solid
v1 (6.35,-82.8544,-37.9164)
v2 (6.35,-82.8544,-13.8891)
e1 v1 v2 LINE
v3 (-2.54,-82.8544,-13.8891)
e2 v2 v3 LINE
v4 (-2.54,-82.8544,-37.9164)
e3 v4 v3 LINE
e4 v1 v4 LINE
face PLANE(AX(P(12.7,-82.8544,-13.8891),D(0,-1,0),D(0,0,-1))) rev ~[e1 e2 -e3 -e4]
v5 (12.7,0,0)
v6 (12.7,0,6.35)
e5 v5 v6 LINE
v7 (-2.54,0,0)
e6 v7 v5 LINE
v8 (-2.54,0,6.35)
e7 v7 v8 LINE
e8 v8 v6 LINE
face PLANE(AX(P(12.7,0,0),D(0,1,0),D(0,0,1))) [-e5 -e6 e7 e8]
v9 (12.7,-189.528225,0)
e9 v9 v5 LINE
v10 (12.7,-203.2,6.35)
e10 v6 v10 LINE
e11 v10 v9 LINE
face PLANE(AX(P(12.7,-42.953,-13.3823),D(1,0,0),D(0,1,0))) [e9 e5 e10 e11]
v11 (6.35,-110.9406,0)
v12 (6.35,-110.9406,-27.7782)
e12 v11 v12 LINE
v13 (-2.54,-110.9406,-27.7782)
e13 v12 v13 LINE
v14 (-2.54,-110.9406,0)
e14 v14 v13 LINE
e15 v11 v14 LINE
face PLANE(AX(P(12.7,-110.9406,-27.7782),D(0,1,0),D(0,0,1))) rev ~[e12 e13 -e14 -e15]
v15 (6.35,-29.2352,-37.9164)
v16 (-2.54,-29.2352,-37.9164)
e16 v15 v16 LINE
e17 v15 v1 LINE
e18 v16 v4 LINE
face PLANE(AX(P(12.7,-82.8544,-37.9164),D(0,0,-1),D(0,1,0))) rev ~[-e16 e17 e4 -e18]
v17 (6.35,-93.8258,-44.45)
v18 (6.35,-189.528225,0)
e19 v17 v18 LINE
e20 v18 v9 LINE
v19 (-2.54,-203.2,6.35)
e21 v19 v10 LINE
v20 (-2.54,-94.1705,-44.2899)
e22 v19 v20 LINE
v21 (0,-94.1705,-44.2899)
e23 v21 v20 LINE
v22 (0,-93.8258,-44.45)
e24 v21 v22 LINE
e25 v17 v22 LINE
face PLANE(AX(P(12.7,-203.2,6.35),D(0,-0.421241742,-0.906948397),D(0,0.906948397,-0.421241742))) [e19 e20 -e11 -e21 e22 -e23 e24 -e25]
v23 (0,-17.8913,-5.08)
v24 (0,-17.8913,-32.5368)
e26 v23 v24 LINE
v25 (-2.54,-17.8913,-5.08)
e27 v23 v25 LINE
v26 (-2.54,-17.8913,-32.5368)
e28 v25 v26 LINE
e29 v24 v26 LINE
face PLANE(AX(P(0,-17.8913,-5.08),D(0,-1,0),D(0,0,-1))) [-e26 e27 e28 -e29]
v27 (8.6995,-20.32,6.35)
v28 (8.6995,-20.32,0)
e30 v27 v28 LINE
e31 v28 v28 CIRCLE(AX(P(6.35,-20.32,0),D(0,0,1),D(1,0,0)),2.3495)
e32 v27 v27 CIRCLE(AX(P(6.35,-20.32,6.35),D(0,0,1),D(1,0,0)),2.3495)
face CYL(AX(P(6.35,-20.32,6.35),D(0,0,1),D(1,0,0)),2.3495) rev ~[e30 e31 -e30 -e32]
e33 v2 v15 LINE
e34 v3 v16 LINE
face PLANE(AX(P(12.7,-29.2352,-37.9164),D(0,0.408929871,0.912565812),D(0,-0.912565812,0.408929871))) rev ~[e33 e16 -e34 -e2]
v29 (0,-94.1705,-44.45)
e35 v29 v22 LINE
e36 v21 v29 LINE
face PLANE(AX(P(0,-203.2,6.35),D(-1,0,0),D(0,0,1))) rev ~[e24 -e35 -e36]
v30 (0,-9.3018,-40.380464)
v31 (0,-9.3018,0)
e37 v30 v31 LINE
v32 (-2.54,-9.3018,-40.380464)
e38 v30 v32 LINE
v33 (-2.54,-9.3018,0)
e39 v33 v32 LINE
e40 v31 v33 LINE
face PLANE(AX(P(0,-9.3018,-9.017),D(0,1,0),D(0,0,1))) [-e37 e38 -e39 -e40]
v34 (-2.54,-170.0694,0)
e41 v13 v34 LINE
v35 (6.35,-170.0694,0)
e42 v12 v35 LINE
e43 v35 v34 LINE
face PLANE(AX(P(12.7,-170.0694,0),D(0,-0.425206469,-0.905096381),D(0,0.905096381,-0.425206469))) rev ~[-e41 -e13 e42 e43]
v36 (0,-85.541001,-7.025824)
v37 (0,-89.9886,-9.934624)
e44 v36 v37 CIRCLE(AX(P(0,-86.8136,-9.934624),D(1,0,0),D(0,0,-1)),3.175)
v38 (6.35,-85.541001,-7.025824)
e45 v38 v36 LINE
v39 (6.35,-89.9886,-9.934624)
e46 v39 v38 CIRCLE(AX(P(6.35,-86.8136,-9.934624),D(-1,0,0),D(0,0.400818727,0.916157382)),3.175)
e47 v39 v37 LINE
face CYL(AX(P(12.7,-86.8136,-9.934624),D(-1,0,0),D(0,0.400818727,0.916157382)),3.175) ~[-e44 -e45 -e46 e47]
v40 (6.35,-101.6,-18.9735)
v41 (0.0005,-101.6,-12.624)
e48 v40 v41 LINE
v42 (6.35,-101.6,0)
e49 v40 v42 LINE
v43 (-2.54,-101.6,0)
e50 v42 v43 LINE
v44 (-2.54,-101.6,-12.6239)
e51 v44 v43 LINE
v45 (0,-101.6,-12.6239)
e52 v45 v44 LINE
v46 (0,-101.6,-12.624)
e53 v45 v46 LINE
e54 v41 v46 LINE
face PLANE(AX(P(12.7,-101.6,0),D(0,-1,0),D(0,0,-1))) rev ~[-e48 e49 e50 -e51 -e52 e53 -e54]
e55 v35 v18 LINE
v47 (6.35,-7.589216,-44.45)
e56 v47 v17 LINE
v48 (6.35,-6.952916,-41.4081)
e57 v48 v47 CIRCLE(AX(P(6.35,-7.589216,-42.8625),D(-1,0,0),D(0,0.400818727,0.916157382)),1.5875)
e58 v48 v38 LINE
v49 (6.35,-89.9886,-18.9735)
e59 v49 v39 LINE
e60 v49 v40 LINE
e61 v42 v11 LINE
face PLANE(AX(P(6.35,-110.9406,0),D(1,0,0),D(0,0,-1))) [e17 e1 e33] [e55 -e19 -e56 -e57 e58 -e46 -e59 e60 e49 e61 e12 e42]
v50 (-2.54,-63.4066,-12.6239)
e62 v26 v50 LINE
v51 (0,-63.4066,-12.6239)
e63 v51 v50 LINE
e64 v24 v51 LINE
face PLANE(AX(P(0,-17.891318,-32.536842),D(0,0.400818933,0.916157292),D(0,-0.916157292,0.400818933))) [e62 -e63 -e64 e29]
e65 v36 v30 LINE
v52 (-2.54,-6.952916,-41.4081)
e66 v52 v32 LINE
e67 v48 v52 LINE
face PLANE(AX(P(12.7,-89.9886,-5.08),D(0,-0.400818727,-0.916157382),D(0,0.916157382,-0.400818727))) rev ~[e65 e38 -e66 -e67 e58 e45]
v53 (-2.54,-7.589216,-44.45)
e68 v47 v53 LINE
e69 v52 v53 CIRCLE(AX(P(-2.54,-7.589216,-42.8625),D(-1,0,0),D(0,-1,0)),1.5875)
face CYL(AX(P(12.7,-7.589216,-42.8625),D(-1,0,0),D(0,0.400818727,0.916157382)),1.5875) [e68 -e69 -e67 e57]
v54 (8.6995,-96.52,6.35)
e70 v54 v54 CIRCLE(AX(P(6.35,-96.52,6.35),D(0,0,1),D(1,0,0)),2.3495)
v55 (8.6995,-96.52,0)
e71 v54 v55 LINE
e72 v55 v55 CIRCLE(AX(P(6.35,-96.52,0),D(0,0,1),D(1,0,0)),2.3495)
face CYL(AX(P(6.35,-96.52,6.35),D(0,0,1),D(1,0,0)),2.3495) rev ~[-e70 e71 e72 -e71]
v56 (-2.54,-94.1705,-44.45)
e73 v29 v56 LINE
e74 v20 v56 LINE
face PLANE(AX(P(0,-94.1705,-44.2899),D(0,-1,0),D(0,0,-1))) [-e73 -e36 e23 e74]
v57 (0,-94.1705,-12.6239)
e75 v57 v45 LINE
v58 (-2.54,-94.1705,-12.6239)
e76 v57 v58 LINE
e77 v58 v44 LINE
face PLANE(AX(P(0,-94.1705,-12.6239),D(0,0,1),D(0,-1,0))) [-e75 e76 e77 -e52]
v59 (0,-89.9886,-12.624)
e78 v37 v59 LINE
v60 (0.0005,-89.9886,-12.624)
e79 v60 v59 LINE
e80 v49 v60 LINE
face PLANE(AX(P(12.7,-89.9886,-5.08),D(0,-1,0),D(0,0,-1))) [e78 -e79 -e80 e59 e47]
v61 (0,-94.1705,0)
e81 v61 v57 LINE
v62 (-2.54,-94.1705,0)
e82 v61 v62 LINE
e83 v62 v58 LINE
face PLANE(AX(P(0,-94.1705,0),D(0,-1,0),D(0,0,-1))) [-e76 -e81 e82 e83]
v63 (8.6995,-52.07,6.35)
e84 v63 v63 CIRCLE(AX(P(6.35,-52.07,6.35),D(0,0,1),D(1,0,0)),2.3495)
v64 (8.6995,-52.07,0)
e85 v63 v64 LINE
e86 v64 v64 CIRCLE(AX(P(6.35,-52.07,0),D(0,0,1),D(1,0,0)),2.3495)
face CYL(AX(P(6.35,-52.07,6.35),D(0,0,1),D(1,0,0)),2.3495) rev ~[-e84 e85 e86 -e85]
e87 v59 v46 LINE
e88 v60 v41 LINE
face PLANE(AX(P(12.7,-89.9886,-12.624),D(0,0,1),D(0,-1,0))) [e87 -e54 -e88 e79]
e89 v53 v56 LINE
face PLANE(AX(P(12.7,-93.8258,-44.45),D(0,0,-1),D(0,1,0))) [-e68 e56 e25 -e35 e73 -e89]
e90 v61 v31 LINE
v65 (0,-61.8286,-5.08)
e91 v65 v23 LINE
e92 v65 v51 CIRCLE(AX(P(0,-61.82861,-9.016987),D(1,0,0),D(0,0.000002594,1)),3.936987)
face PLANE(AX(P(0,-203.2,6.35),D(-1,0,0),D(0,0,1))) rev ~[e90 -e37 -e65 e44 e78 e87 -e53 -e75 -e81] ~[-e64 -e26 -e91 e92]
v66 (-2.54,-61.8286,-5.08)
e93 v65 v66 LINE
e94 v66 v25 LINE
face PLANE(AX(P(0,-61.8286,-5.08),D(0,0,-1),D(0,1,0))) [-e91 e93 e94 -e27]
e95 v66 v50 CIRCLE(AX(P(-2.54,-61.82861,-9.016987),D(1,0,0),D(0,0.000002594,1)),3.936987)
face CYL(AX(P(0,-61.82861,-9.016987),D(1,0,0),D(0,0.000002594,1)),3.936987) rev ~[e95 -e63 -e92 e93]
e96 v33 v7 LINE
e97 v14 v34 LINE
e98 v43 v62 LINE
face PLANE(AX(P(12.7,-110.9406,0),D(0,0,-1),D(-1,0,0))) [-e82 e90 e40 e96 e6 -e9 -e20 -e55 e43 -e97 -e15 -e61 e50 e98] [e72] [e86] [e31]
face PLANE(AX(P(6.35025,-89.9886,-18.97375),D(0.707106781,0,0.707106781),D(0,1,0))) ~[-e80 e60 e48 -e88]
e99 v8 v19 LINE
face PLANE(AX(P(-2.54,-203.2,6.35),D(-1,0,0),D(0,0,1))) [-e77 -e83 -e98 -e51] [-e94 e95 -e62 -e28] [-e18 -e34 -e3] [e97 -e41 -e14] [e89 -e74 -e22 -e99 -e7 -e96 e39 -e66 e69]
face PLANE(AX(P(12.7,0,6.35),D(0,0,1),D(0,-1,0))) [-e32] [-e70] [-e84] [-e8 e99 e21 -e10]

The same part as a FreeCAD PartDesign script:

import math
import FreeCAD as App
import Part
import Sketcher
from FreeCAD import Vector
Q = App.Units.Quantity


def edges_at(feature, points):
    """Names of the edges that pass closest to the given points."""
    edges = feature.Shape.Edges
    near = lambda p: min(range(len(edges)), key=lambda i: edges[i].distToShape(Part.Vertex(*p))[0])
    return sorted({f"Edge{near(p) + 1}" for p in points})

doc = App.newDocument("Part")
body = doc.addObject("PartDesign::Body", "Body")

sketch1 = body.newObject("Sketcher::SketchObject", "Sketch")
sketch1.AttachmentSupport = (doc.getObject("YZ_Plane"), [""])
sketch1.MapMode = "FlatFace"
sketch1.AttachmentOffset = App.Placement(Vector(0, 0, 0.5 * 25.4), App.Rotation())
sketch1.addGeometry(Part.LineSegment(Vector(-101.6, 0, 0), Vector(0, 0, 0)), False)
sketch1.addGeometry(Part.LineSegment(Vector(0, 0, 0), Vector(0, 6.35, 0)), False)
sketch1.addGeometry(Part.LineSegment(Vector(0, 6.35, 0), Vector(-203.2, 6.35, 0)), False)
sketch1.addGeometry(Part.LineSegment(Vector(-203.2, 6.35, 0), Vector(-93.8258, -44.45, 0)), False)
sketch1.addGeometry(Part.LineSegment(Vector(-93.8258, -44.45, 0), Vector(0, -44.45, 0)), False)
sketch1.addGeometry(Part.LineSegment(Vector(0, -44.45, 0), Vector(-89.9886, -5.08, 0)), False)
sketch1.addGeometry(Part.LineSegment(Vector(-89.9886, -5.08, 0), Vector(-89.9886, -12.624, 0)), False)
sketch1.addGeometry(Part.LineSegment(Vector(-89.9886, -12.624, 0), Vector(-101.6, -12.624, 0)), False)
sketch1.addGeometry(Part.LineSegment(Vector(-101.6, -12.624, 0), Vector(-101.6, 0, 0)), False)
sketch1.addConstraint(Sketcher.Constraint("Coincident", 0, 2, 1, 1))
sketch1.addConstraint(Sketcher.Constraint("Coincident", 1, 2, 2, 1))
sketch1.addConstraint(Sketcher.Constraint("Coincident", 2, 2, 3, 1))
sketch1.addConstraint(Sketcher.Constraint("Coincident", 3, 2, 4, 1))
sketch1.addConstraint(Sketcher.Constraint("Coincident", 4, 2, 5, 1))
sketch1.addConstraint(Sketcher.Constraint("Coincident", 5, 2, 6, 1))
sketch1.addConstraint(Sketcher.Constraint("Coincident", 6, 2, 7, 1))
sketch1.addConstraint(Sketcher.Constraint("Coincident", 7, 2, 8, 1))
sketch1.addConstraint(Sketcher.Constraint("Coincident", 8, 2, 0, 1))
sketch1.addConstraint(Sketcher.Constraint("Horizontal", 0))
sketch1.addConstraint(Sketcher.Constraint("Vertical", 1))
sketch1.addConstraint(Sketcher.Constraint("Horizontal", 2))
sketch1.addConstraint(Sketcher.Constraint("Horizontal", 4))
sketch1.addConstraint(Sketcher.Constraint("Vertical", 6))
sketch1.addConstraint(Sketcher.Constraint("Horizontal", 7))
sketch1.addConstraint(Sketcher.Constraint("Vertical", 8))
sketch1.addConstraint(Sketcher.Constraint("Coincident", 0, 2, -1, 1))
sketch1.addConstraint(Sketcher.Constraint("PointOnObject", 4, 2, -2))
sketch1.addConstraint(Sketcher.Constraint("DistanceX", 2, 2, 2, 1, Q("8 in")))
sketch1.addConstraint(Sketcher.Constraint("DistanceY", 1, 1, 1, 2, Q("0.25 in")))
sketch1.addConstraint(Sketcher.Constraint("DistanceX", 0, 1, 0, 2, Q("4 in")))
sketch1.addConstraint(Sketcher.Constraint("DistanceY", 3, 2, 1, 2, Q("2 in")))
sketch1.addConstraint(Sketcher.Constraint("DistanceY", 5, 2, -1, 1, Q("0.2 in")))
sketch1.addConstraint(Sketcher.Constraint("DistanceY", 6, 2, 6, 1, Q("0.297 in")))
sketch1.addConstraint(Sketcher.Constraint("Angle", 5, Q("156.3706 deg")))
sketch1.addConstraint(Sketcher.Constraint("DistanceX", 4, 1, 4, 2, 93.8258))
pad1 = body.newObject("PartDesign::Pad", "Pad")
pad1.Profile = sketch1
pad1.Length = Q("0.5 in")
pad1.Reversed = True

sketch2 = body.newObject("Sketcher::SketchObject", "Sketch001")
sketch2.AttachmentSupport = (doc.getObject("XY_Plane"), [""])
sketch2.MapMode = "FlatFace"
sketch2.AttachmentOffset = App.Placement(Vector(0, 0, 0.25 * 25.4), App.Rotation())
sketch2.addGeometry(Part.Circle(Vector(6.35, -20.32, 0), Vector(0, 0, 1), 2.3495), False)
sketch2.addGeometry(Part.Circle(Vector(6.35, -52.07, 0), Vector(0, 0, 1), 2.3495), False)
sketch2.addGeometry(Part.Circle(Vector(6.35, -96.52, 0), Vector(0, 0, 1), 2.3495), False)
sketch2.addConstraint(Sketcher.Constraint("Equal", 0, 1))
sketch2.addConstraint(Sketcher.Constraint("Equal", 1, 2))
sketch2.addConstraint(Sketcher.Constraint("Vertical", 0, 3, 1, 3))
sketch2.addConstraint(Sketcher.Constraint("Vertical", 1, 3, 2, 3))
sketch2.addConstraint(Sketcher.Constraint("Diameter", 0, Q("0.185 in")))
sketch2.addConstraint(Sketcher.Constraint("DistanceY", 2, 3, 0, 3, Q("3 in")))
sketch2.addConstraint(Sketcher.Constraint("DistanceY", 0, 3, -1, 1, Q("0.8 in")))
sketch2.addConstraint(Sketcher.Constraint("DistanceX", -1, 1, 0, 3, Q("0.25 in")))
sketch2.addConstraint(Sketcher.Constraint("DistanceY", 1, 3, -1, 1, Q("2.05 in")))
pocket1 = body.newObject("PartDesign::Pocket", "Pocket")
pocket1.Profile = sketch2
pocket1.Length = Q("0.6875 in")

sketch3 = body.newObject("Sketcher::SketchObject", "Sketch002")
sketch3.AttachmentSupport = (doc.getObject("YZ_Plane"), [""])
sketch3.MapMode = "FlatFace"
sketch3.addGeometry(Part.LineSegment(Vector(0, 6.35, 0), Vector(0, 0, 0)), False)
sketch3.addGeometry(Part.LineSegment(Vector(0, 0, 0), Vector(-9.3018, 0, 0)), False)
sketch3.addGeometry(Part.LineSegment(Vector(-9.3018, 0, 0), Vector(-9.3018, -40.380464, 0)), False)
sketch3.addGeometry(Part.LineSegment(Vector(-9.3018, -40.380464, 0), Vector(0, -44.45, 0)), False)
sketch3.addGeometry(Part.LineSegment(Vector(0, -44.45, 0), Vector(-94.1705, -44.45, 0)), False)
sketch3.addGeometry(Part.LineSegment(Vector(-94.1705, -44.45, 0), Vector(-94.1705, -44.2899, 0)), False)
sketch3.addGeometry(Part.LineSegment(Vector(-94.1705, -44.2899, 0), Vector(-203.2, 6.35, 0)), False)
sketch3.addGeometry(Part.LineSegment(Vector(-203.2, 6.35, 0), Vector(0, 6.35, 0)), False)
sketch3.addGeometry(Part.LineSegment(Vector(-101.6, -12.6239, 0), Vector(-94.1705, -12.6239, 0)), False)
sketch3.addGeometry(Part.LineSegment(Vector(-94.1705, -12.6239, 0), Vector(-94.1705, 0, 0)), False)
sketch3.addGeometry(Part.LineSegment(Vector(-94.1705, 0, 0), Vector(-101.6, 0, 0)), False)
sketch3.addGeometry(Part.LineSegment(Vector(-101.6, 0, 0), Vector(-101.6, -12.6239, 0)), False)
sketch3.addConstraint(Sketcher.Constraint("Coincident", 0, 2, 1, 1))
sketch3.addConstraint(Sketcher.Constraint("Coincident", 1, 2, 2, 1))
sketch3.addConstraint(Sketcher.Constraint("Coincident", 2, 2, 3, 1))
sketch3.addConstraint(Sketcher.Constraint("Coincident", 3, 2, 4, 1))
sketch3.addConstraint(Sketcher.Constraint("Coincident", 4, 2, 5, 1))
sketch3.addConstraint(Sketcher.Constraint("Coincident", 5, 2, 6, 1))
sketch3.addConstraint(Sketcher.Constraint("Coincident", 6, 2, 7, 1))
sketch3.addConstraint(Sketcher.Constraint("Coincident", 7, 2, 0, 1))
sketch3.addConstraint(Sketcher.Constraint("Coincident", 8, 2, 9, 1))
sketch3.addConstraint(Sketcher.Constraint("Coincident", 9, 2, 10, 1))
sketch3.addConstraint(Sketcher.Constraint("Coincident", 10, 2, 11, 1))
sketch3.addConstraint(Sketcher.Constraint("Coincident", 11, 2, 8, 1))
sketch3.addConstraint(Sketcher.Constraint("Vertical", 0))
sketch3.addConstraint(Sketcher.Constraint("Horizontal", 1))
sketch3.addConstraint(Sketcher.Constraint("Vertical", 2))
sketch3.addConstraint(Sketcher.Constraint("Horizontal", 4))
sketch3.addConstraint(Sketcher.Constraint("Vertical", 5))
sketch3.addConstraint(Sketcher.Constraint("Horizontal", 7))
sketch3.addConstraint(Sketcher.Constraint("Horizontal", 8))
sketch3.addConstraint(Sketcher.Constraint("Vertical", 9))
sketch3.addConstraint(Sketcher.Constraint("Horizontal", 10))
sketch3.addConstraint(Sketcher.Constraint("Vertical", 11))
sketch3.addConstraint(Sketcher.Constraint("Coincident", 0, 2, -1, 1))
sketch3.addConstraint(Sketcher.Constraint("PointOnObject", 3, 2, -2))
sketch3.addConstraint(Sketcher.Constraint("PointOnObject", 9, 2, -1))
sketch3.addConstraint(Sketcher.Constraint("Vertical", 5, 2, 8, 2))
sketch3.addConstraint(Sketcher.Constraint("DistanceX", 7, 1, 7, 2, Q("8 in")))
sketch3.addConstraint(Sketcher.Constraint("DistanceX", 10, 2, -1, 1, Q("4 in")))
sketch3.addConstraint(Sketcher.Constraint("DistanceY", 4, 2, 6, 2, Q("2 in")))
sketch3.addConstraint(Sketcher.Constraint("DistanceY", 0, 2, 0, 1, Q("0.25 in")))
sketch3.addConstraint(Sketcher.Constraint("DistanceY", 9, 1, 9, 2, Q("0.497 in")))
sketch3.addConstraint(Sketcher.Constraint("Angle", 3, Q("-23.6294 deg")))
sketch3.addConstraint(Sketcher.Constraint("DistanceX", 4, 2, 4, 1, Q("3.7075 in")))
sketch3.addConstraint(Sketcher.Constraint("DistanceY", 5, 1, 5, 2, Q("0.0063 in")))
sketch3.addConstraint(Sketcher.Constraint("DistanceX", 1, 2, 1, 1, 9.3018))
pad2 = body.newObject("PartDesign::Pad", "Pad001")
pad2.Profile = sketch3
pad2.Length = Q("0.1 in")
pad2.Reversed = True

sketch4 = body.newObject("Sketcher::SketchObject", "Sketch003")
sketch4.AttachmentSupport = (doc.getObject("YZ_Plane"), [""])
sketch4.MapMode = "FlatFace"
sketch4.addGeometry(Part.LineSegment(Vector(-17.8913, -5.08, 0), Vector(-61.8286, -5.08, 0)), False)
sketch4.addGeometry(Part.ArcOfCircle(Part.Circle(Vector(-61.8286, -9.017, 0), Vector(0, 0, 1), 3.937), math.radians(90), math.radians(246.370872)), False)
sketch4.addGeometry(Part.LineSegment(Vector(-63.4066, -12.6239, 0), Vector(-17.891318, -32.536842, 0)), False)
sketch4.addGeometry(Part.LineSegment(Vector(-17.8913, -32.5368, 0), Vector(-17.8913, -5.08, 0)), False)
sketch4.addConstraint(Sketcher.Constraint("Tangent", 0, 2, 1, 1))
sketch4.addConstraint(Sketcher.Constraint("Tangent", 1, 2, 2, 1))
sketch4.addConstraint(Sketcher.Constraint("Coincident", 2, 2, 3, 1))
sketch4.addConstraint(Sketcher.Constraint("Coincident", 3, 2, 0, 1))
sketch4.addConstraint(Sketcher.Constraint("Horizontal", 0))
sketch4.addConstraint(Sketcher.Constraint("Vertical", 3))
sketch4.addConstraint(Sketcher.Constraint("Radius", 1, Q("0.155 in")))
sketch4.addConstraint(Sketcher.Constraint("DistanceY", 0, 2, -1, 1, Q("0.2 in")))
sketch4.addConstraint(Sketcher.Constraint("Angle", 2, Q("-23.6294 deg")))
sketch4.addConstraint(Sketcher.Constraint("DistanceX", 0, 2, 0, 1, 43.9373))
sketch4.addConstraint(Sketcher.Constraint("DistanceX", 1, 3, -1, 1, Q("2.4342 in")))
pocket2 = body.newObject("PartDesign::Pocket", "Pocket001")
pocket2.Profile = sketch4
pocket2.Length = Q("0.1 in")
doc.recompute()

fillet = body.newObject("PartDesign::Fillet", "Fillet")
fillet.Base = (pocket2, edges_at(pocket2, [(6.35, -89.989, -5.08)]))
fillet.Radius = Q("0.125 in")
doc.recompute()

fillet2 = body.newObject("PartDesign::Fillet", "Fillet001")
fillet2.Base = (fillet, edges_at(fillet, [(5.08, 0, -44.45)]))
fillet2.Radius = Q("0.0625 in")

sketch5 = body.newObject("Sketcher::SketchObject", "Sketch004")
sketch5.AttachmentSupport = (doc.getObject("YZ_Plane"), [""])
sketch5.MapMode = "FlatFace"
sketch5.AttachmentOffset = App.Placement(Vector(0, 0, 0.5 * 25.4), App.Rotation())
sketch5.addGeometry(Part.LineSegment(Vector(-110.9406, 0, 0), Vector(-170.0694, 0, 0)), False)
sketch5.addGeometry(Part.LineSegment(Vector(-170.0694, 0, 0), Vector(-110.9406, -27.7782, 0)), False)
sketch5.addGeometry(Part.LineSegment(Vector(-110.9406, -27.7782, 0), Vector(-110.9406, 0, 0)), False)
sketch5.addGeometry(Part.LineSegment(Vector(-82.8544, -13.8891, 0), Vector(-82.8544, -37.9164, 0)), False)
sketch5.addGeometry(Part.LineSegment(Vector(-82.8544, -37.9164, 0), Vector(-29.2352, -37.9164, 0)), False)
sketch5.addGeometry(Part.LineSegment(Vector(-29.2352, -37.9164, 0), Vector(-82.8544, -13.8891, 0)), False)
sketch5.addConstraint(Sketcher.Constraint("Coincident", 0, 2, 1, 1))
sketch5.addConstraint(Sketcher.Constraint("Coincident", 1, 2, 2, 1))
sketch5.addConstraint(Sketcher.Constraint("Coincident", 2, 2, 0, 1))
sketch5.addConstraint(Sketcher.Constraint("Coincident", 3, 2, 4, 1))
sketch5.addConstraint(Sketcher.Constraint("Coincident", 4, 2, 5, 1))
sketch5.addConstraint(Sketcher.Constraint("Coincident", 5, 2, 3, 1))
sketch5.addConstraint(Sketcher.Constraint("Horizontal", 0))
sketch5.addConstraint(Sketcher.Constraint("Vertical", 2))
sketch5.addConstraint(Sketcher.Constraint("Vertical", 3))
sketch5.addConstraint(Sketcher.Constraint("Horizontal", 4))
sketch5.addConstraint(Sketcher.Constraint("PointOnObject", 0, 2, -1))
sketch5.addConstraint(Sketcher.Constraint("DistanceX", 4, 1, 4, 2, Q("2.111 in")))
sketch5.addConstraint(Sketcher.Constraint("Distance", 1, Q("2.572 in")))
sketch5.addConstraint(Sketcher.Constraint("DistanceX", 0, 2, 0, 1, Q("2.3279 in")))
sketch5.addConstraint(Sketcher.Constraint("DistanceX", 4, 2, -1, 1, Q("1.151 in")))
sketch5.addConstraint(Sketcher.Constraint("DistanceY", 3, 2, 3, 1, 24.0273))
sketch5.addConstraint(Sketcher.Constraint("DistanceX", 0, 2, -1, 1, 170.0694))
sketch5.addConstraint(Sketcher.Constraint("DistanceY", 3, 2, -1, 1, 37.9164))
pocket3 = body.newObject("PartDesign::Pocket", "Pocket002")
pocket3.Profile = sketch5
pocket3.Length = Q("0.7 in")
doc.recompute()

chamfer = body.newObject("PartDesign::Chamfer", "Chamfer")
chamfer.Base = (pocket3, edges_at(pocket3, [(12.7, -95.794, -12.624)]))
chamfer.Size = Q("0.5 in")

sketch6 = body.newObject("Sketcher::SketchObject", "Sketch005")
sketch6.AttachmentSupport = (doc.getObject("XZ_Plane"), [""])
sketch6.MapMode = "FlatFace"
sketch6.AttachmentOffset = App.Placement(Vector(0, 0, 110.9406), App.Rotation())
sketch6.addGeometry(Part.LineSegment(Vector(12.7, -44.45, 0), Vector(12.7, 0, 0)), False)
sketch6.addGeometry(Part.LineSegment(Vector(12.7, 0, 0), Vector(6.35, 0, 0)), False)
sketch6.addGeometry(Part.LineSegment(Vector(6.35, 0, 0), Vector(6.35, -44.45, 0)), False)
sketch6.addGeometry(Part.LineSegment(Vector(6.35, -44.45, 0), Vector(12.7, -44.45, 0)), False)
sketch6.addConstraint(Sketcher.Constraint("Coincident", 0, 2, 1, 1))
sketch6.addConstraint(Sketcher.Constraint("Coincident", 1, 2, 2, 1))
sketch6.addConstraint(Sketcher.Constraint("Coincident", 2, 2, 3, 1))
sketch6.addConstraint(Sketcher.Constraint("Coincident", 3, 2, 0, 1))
sketch6.addConstraint(Sketcher.Constraint("Vertical", 0))
sketch6.addConstraint(Sketcher.Constraint("Horizontal", 1))
sketch6.addConstraint(Sketcher.Constraint("Vertical", 2))
sketch6.addConstraint(Sketcher.Constraint("Horizontal", 3))
sketch6.addConstraint(Sketcher.Constraint("PointOnObject", 0, 2, -1))
sketch6.addConstraint(Sketcher.Constraint("DistanceX", 1, 2, 1, 1, Q("0.25 in")))
sketch6.addConstraint(Sketcher.Constraint("DistanceX", -1, 1, 1, 2, Q("0.25 in")))
sketch6.addConstraint(Sketcher.Constraint("DistanceY", 0, 1, 0, 2, Q("1.75 in")))
pocket4 = body.newObject("PartDesign::Pocket", "Pocket003")
pocket4.Profile = sketch6
pocket4.Length = Q("8.325 in")
pocket4.Midplane = True

doc.recompute()
